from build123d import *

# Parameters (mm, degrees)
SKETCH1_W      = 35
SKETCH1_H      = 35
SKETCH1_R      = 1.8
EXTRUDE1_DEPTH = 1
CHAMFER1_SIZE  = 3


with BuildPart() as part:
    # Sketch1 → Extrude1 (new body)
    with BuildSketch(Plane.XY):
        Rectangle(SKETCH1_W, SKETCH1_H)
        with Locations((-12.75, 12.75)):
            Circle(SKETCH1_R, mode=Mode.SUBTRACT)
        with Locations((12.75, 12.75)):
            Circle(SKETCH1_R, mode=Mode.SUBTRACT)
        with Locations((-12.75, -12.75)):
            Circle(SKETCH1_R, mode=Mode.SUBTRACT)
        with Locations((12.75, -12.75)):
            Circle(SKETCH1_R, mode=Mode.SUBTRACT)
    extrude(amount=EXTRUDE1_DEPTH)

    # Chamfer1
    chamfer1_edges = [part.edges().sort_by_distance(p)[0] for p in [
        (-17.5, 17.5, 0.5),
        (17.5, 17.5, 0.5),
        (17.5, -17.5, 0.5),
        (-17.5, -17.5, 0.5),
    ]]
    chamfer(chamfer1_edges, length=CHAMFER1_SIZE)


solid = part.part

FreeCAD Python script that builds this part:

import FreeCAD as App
import Part
import Sketcher

V = App.Vector
Q = App.Units.Quantity


def edges_at(feature, points):
    """Names of the edges that pass closest to the given points."""
    edges = feature.Shape.Edges
    near = lambda p: min(range(len(edges)), key=lambda i: edges[i].distToShape(Part.Vertex(*p))[0])
    return sorted({f"Edge{near(p) + 1}" for p in points})


def add_polygon(sketch, points):
    """Adds a closed chain of lines whose ends are joined by coincident constraints."""
    first, n = sketch.GeometryCount, len(points)
    for a, b in zip(points, points[1:] + points[:1]):
        sketch.addGeometry(Part.LineSegment(App.Vector(*a, 0), App.Vector(*b, 0)), False)
    for i in range(n):
        sketch.addConstraint(Sketcher.Constraint("Coincident", first + i, 2, first + (i + 1) % n, 1))

doc = App.newDocument("Part")
params = doc.addObject("Spreadsheet::Sheet", "Params")
for row, (alias, value) in enumerate([
    ("sketch1_diameter", "3.6 mm"),
    ("sketch1_width", "35 mm"),
    ("pad1_length", "1 mm"),
    ("chamfer_size", "3 mm"),
], start=1):
    params.set(f"A{row}", alias)
    params.set(f"B{row}", "=" + value)
    params.setAlias(f"B{row}", alias)

body = doc.addObject("PartDesign::Body", "Body")

# Sketch on XY plane
sketch1 = body.newObject("Sketcher::SketchObject", "Sketch")
sketch1.AttachmentSupport = (doc.getObject("XY_Plane"), [""])
sketch1.MapMode = "FlatFace"
add_polygon(sketch1, [(-17.5, 17.5), (-17.5, -17.5), (17.5, -17.5), (17.5, 17.5)])  # lines 0-3
sketch1.addGeometry(Part.Circle(V(-12.75, -12.75, 0), V(0, 0, 1), 1.8), False)  # 4
sketch1.addGeometry(Part.Circle(V(12.75, -12.75, 0), V(0, 0, 1), 1.8), False)  # 5
sketch1.addGeometry(Part.Circle(V(-12.75, 12.75, 0), V(0, 0, 1), 1.8), False)  # 6
sketch1.addGeometry(Part.Circle(V(12.75, 12.75, 0), V(0, 0, 1), 1.8), False)  # 7
sketch1.addConstraint([
    Sketcher.Constraint("Vertical", 0),
    Sketcher.Constraint("Horizontal", 1),
    Sketcher.Constraint("Vertical", 2),
    Sketcher.Constraint("Horizontal", 3),
    Sketcher.Constraint("Equal", 4, 5),
    Sketcher.Constraint("Equal", 5, 6),
    Sketcher.Constraint("Equal", 6, 7),
    Sketcher.Constraint("Symmetric", 5, 3, 6, 3, -1, 1),
    Sketcher.Constraint("Symmetric", 4, 3, 7, 3, -1, 1),
    Sketcher.Constraint("Symmetric", 0, 2, 2, 2, -1, 1),
    Sketcher.Constraint("Symmetric", 4, 3, 5, 3, -2),
    Sketcher.Constraint("Equal", 3, 0),
    Sketcher.Constraint("Diameter", 4, Q("3.6 mm")),
    Sketcher.Constraint("DistanceX", 1, 1, 1, 2, Q("35 mm")),
    Sketcher.Constraint("DistanceX", 4, 3, 5, 3, Q("25.5 mm")),
    Sketcher.Constraint("DistanceY", 4, 3, 6, 3, Q("25.5 mm")),
])
sketch1.setExpression("Constraints[16]", "Params.sketch1_diameter")
sketch1.setExpression("Constraints[17]", "Params.sketch1_width")
pad1 = body.newObject("PartDesign::Pad", "Pad")
pad1.Profile = sketch1
pad1.setExpression("Length", "Params.pad1_length")
doc.recompute()

chamfer = body.newObject("PartDesign::Chamfer", "Chamfer")
chamfer.Base = (pad1, edges_at(pad1, [
    (-17.5, 17.5, 0.5),
    (17.5, 17.5, 0.5),
    (17.5, -17.5, 0.5),
    (-17.5, -17.5, 0.5),
]))
chamfer.setExpression("Size", "Params.chamfer_size")

doc.recompute()
